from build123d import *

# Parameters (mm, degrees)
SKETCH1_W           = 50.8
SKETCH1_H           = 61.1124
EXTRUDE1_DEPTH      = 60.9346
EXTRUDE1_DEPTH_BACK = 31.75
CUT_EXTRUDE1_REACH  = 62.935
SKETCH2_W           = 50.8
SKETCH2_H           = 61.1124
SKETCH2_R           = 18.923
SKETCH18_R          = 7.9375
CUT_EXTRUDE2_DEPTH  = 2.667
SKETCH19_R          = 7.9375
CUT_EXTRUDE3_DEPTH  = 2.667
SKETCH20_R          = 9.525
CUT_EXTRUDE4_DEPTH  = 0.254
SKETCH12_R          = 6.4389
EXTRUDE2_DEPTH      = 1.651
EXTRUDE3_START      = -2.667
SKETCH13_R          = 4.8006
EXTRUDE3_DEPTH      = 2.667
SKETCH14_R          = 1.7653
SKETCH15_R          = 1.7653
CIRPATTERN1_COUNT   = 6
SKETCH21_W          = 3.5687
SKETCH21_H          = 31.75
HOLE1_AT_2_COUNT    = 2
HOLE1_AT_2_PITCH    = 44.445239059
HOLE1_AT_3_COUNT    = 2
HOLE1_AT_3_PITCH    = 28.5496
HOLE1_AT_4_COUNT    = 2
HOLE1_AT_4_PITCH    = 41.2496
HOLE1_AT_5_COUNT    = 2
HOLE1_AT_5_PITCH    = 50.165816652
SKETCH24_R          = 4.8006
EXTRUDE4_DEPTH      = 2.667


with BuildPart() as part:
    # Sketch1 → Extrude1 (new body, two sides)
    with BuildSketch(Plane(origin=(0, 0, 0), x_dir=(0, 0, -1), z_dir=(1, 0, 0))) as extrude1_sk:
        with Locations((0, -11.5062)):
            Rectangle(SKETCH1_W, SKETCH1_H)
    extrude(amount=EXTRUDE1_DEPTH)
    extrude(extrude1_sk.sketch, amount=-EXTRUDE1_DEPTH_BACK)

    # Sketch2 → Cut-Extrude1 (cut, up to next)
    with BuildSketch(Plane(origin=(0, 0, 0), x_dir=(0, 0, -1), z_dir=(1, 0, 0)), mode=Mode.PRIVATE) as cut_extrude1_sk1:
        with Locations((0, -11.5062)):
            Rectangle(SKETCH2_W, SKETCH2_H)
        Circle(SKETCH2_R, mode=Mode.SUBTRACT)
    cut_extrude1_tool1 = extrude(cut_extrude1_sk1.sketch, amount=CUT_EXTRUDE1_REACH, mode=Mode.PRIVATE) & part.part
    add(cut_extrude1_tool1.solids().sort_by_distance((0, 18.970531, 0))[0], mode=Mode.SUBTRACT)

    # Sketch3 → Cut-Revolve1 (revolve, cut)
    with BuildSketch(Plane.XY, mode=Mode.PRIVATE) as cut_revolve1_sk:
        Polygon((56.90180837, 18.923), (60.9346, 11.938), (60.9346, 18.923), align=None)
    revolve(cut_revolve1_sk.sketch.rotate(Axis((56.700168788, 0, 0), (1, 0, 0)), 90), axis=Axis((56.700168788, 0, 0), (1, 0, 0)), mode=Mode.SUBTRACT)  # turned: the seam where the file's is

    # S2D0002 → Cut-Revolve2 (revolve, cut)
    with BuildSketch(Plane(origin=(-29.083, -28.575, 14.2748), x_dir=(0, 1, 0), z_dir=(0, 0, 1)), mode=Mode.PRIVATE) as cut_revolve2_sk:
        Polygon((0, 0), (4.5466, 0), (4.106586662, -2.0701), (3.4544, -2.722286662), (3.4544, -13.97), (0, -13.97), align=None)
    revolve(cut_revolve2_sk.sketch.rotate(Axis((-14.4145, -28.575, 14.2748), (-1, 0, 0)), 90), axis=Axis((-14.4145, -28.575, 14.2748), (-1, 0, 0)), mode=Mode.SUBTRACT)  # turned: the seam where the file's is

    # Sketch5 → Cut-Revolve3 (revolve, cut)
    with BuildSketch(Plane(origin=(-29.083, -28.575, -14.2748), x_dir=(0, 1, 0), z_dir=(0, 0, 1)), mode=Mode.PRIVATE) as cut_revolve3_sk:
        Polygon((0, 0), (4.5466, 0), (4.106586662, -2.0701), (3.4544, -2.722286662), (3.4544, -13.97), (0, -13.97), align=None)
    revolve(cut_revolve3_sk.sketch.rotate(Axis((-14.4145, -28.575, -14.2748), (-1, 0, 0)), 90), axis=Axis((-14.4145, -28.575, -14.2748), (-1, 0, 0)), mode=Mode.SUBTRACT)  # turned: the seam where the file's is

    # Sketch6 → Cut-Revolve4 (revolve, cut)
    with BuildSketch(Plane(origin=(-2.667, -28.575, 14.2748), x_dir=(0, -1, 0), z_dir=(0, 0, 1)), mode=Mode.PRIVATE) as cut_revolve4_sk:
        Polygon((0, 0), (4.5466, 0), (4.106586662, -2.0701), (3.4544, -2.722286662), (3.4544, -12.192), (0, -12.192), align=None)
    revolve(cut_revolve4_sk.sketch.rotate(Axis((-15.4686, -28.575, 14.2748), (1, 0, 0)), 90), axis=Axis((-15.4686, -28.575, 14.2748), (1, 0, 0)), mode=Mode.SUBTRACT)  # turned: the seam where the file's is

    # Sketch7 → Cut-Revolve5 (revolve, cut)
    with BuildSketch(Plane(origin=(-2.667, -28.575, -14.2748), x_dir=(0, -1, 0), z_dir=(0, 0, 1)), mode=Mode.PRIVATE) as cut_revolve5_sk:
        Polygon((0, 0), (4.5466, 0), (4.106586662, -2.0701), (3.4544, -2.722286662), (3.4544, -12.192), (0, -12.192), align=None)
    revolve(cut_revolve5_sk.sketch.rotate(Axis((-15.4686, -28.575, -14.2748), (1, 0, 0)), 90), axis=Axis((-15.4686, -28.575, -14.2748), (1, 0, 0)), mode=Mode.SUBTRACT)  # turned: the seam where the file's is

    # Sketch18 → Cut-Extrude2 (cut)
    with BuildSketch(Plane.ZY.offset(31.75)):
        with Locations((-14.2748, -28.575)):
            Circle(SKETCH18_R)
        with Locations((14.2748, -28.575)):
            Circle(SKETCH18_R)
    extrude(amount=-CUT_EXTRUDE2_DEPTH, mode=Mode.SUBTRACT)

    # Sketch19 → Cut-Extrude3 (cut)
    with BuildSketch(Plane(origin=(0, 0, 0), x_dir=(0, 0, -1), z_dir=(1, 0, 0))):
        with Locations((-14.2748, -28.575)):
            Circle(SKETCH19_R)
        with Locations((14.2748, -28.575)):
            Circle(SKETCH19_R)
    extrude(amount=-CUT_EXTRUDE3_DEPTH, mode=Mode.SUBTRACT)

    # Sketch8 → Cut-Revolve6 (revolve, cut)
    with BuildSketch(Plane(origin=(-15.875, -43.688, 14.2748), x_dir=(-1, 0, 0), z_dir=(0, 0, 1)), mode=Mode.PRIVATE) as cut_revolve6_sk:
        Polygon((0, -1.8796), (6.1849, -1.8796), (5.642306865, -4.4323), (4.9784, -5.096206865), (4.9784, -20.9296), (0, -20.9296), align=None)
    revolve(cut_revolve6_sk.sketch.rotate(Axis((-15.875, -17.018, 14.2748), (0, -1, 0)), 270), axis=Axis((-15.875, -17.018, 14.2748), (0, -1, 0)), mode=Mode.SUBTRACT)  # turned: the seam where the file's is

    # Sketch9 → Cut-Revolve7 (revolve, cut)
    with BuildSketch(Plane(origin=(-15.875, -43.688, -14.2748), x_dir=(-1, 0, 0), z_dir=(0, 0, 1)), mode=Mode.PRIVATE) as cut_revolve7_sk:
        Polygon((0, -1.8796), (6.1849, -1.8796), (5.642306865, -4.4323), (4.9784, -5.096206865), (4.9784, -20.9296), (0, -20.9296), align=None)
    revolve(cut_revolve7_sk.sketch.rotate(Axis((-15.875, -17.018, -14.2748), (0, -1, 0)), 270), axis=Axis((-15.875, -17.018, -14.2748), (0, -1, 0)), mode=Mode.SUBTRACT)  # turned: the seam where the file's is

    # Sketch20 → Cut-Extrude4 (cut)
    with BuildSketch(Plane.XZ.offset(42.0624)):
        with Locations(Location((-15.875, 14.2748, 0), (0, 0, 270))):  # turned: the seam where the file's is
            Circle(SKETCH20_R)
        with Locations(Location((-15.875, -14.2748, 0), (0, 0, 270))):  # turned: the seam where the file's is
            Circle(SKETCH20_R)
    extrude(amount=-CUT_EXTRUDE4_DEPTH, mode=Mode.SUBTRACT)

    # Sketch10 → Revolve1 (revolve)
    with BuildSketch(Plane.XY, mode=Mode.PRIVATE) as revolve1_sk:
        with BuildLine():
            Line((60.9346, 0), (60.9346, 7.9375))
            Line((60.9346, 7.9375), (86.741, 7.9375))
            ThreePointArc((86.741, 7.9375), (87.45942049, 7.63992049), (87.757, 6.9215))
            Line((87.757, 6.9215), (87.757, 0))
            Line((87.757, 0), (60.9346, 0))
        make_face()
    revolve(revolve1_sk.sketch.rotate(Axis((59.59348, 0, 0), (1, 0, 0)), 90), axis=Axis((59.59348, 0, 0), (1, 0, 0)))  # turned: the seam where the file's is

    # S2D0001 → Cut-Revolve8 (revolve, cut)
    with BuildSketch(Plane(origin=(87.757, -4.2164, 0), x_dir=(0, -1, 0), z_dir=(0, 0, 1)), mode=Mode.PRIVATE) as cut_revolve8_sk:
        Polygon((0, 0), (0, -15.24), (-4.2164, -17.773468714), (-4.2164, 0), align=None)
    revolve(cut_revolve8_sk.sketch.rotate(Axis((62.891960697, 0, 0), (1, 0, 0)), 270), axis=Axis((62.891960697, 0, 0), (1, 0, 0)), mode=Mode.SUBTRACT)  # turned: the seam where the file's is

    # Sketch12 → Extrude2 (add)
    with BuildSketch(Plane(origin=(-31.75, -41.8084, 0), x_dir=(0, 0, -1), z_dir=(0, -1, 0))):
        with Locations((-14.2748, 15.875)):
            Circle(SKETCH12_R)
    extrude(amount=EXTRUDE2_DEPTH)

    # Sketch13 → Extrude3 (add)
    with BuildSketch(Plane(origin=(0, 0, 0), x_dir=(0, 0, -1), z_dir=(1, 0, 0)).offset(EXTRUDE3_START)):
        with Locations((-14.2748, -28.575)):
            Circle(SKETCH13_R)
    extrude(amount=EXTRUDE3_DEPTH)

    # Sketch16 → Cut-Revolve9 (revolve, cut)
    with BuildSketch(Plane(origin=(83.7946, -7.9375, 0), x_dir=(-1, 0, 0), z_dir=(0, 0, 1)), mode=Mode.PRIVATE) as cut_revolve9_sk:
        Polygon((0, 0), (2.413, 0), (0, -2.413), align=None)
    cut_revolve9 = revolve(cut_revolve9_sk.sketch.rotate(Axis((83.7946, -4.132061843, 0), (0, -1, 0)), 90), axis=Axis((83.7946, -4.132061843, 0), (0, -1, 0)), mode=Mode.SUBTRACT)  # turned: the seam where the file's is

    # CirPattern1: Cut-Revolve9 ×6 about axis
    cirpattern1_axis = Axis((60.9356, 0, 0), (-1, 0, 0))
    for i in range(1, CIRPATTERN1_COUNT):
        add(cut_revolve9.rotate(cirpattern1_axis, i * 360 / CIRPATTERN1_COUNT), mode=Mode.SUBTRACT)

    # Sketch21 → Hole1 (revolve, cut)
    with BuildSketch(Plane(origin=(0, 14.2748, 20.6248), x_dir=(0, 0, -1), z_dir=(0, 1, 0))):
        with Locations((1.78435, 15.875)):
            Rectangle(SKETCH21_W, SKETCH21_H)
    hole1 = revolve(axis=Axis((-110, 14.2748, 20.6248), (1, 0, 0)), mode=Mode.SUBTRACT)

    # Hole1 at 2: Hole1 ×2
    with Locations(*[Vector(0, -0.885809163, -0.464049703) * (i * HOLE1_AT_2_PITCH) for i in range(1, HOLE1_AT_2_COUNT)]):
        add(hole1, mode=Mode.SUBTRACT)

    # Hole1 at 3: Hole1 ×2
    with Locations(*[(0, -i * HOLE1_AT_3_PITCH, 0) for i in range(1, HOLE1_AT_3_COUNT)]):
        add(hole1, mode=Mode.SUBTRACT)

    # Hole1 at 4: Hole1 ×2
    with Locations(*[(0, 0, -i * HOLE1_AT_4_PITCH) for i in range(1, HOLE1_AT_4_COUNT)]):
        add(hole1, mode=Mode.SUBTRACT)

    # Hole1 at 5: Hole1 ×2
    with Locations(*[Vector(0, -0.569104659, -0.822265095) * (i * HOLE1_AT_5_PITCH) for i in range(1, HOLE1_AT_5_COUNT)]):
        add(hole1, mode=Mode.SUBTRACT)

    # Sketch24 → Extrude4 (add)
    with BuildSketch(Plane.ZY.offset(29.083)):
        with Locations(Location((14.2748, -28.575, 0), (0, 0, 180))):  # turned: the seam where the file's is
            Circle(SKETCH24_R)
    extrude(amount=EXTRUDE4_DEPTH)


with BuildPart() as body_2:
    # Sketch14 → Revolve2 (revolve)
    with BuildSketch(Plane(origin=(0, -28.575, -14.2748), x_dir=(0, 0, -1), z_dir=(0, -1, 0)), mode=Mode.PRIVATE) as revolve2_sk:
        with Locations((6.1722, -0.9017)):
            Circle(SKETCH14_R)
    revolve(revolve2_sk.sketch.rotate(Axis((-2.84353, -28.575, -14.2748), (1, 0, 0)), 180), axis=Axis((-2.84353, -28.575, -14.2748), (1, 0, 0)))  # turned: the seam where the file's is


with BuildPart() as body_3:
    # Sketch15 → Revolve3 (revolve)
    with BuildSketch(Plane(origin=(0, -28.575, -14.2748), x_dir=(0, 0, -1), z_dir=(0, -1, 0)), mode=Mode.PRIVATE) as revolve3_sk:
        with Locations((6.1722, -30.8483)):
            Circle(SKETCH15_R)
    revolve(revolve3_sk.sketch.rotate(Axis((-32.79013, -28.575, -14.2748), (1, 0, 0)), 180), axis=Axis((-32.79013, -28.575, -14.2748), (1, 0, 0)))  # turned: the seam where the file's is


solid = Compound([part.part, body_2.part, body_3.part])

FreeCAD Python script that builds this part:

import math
import FreeCAD as App
import Part
import Sketcher
from FreeCAD import Vector
Q = App.Units.Quantity

doc = App.newDocument("Part")
body = doc.addObject("PartDesign::Body", "Body")

sketch1 = body.newObject("Sketcher::SketchObject", "Sketch")
sketch1.AttachmentSupport = (doc.getObject("YZ_Plane"), [""])
sketch1.MapMode = "FlatFace"
sketch1.addGeometry(Part.LineSegment(Vector(19, 25, 0), Vector(-42, 25, 0)), False)
sketch1.addGeometry(Part.LineSegment(Vector(-42, 25, 0), Vector(-42, -25, 0)), False)
sketch1.addGeometry(Part.LineSegment(Vector(-42, -25, 0), Vector(19, -25, 0)), False)
sketch1.addGeometry(Part.LineSegment(Vector(19, -25, 0), Vector(19, 25, 0)), False)
sketch1.addConstraint(Sketcher.Constraint("Coincident", 0, 2, 1, 1))
sketch1.addConstraint(Sketcher.Constraint("Coincident", 1, 2, 2, 1))
sketch1.addConstraint(Sketcher.Constraint("Coincident", 2, 2, 3, 1))
sketch1.addConstraint(Sketcher.Constraint("Coincident", 3, 2, 0, 1))
sketch1.addConstraint(Sketcher.Constraint("Horizontal", 0))
sketch1.addConstraint(Sketcher.Constraint("Vertical", 1))
sketch1.addConstraint(Sketcher.Constraint("Horizontal", 2))
sketch1.addConstraint(Sketcher.Constraint("Vertical", 3))
sketch1.addConstraint(Sketcher.Constraint("DistanceY", 1, 2, 1, 1, Q("2 in")))
sketch1.addConstraint(Sketcher.Constraint("DistanceY", -1, 1, 0, 2, Q("1 in")))
sketch1.addConstraint(Sketcher.Constraint("DistanceX", 0, 2, 0, 1, Q("2.406 in")))
sketch1.addConstraint(Sketcher.Constraint("DistanceX", -1, 1, 2, 2, Q("0.75 in")))
pad1 = body.newObject("PartDesign::Pad", "Pad")
pad1.Profile = sketch1
pad1.Type = "TwoLengths"
pad1.Length = Q("2.399 in")
pad1.Length2 = Q("1.25 in")

sketch2 = body.newObject("Sketcher::SketchObject", "Sketch001")
sketch2.AttachmentSupport = (doc.getObject("YZ_Plane"), [""])
sketch2.MapMode = "FlatFace"
sketch2.addGeometry(Part.LineSegment(Vector(19, 25, 0), Vector(-42, 25, 0)), False)
sketch2.addGeometry(Part.LineSegment(Vector(-42, 25, 0), Vector(-42, -25, 0)), False)
sketch2.addGeometry(Part.LineSegment(Vector(-42, -25, 0), Vector(19, -25, 0)), False)
sketch2.addGeometry(Part.LineSegment(Vector(19, -25, 0), Vector(19, 25, 0)), False)
sketch2.addGeometry(Part.Circle(Vector(0, 0, 0), Vector(0, 0, 1), 19), False)
sketch2.addConstraint(Sketcher.Constraint("Coincident", 0, 2, 1, 1))
sketch2.addConstraint(Sketcher.Constraint("Coincident", 1, 2, 2, 1))
sketch2.addConstraint(Sketcher.Constraint("Coincident", 2, 2, 3, 1))
sketch2.addConstraint(Sketcher.Constraint("Coincident", 3, 2, 0, 1))
sketch2.addConstraint(Sketcher.Constraint("Horizontal", 0))
sketch2.addConstraint(Sketcher.Constraint("Vertical", 1))
sketch2.addConstraint(Sketcher.Constraint("Horizontal", 2))
sketch2.addConstraint(Sketcher.Constraint("Vertical", 3))
sketch2.addConstraint(Sketcher.Constraint("Coincident", 4, 3, -1, 1))
sketch2.addConstraint(Sketcher.Constraint("Diameter", 4, Q("1.49 in")))
sketch2.addConstraint(Sketcher.Constraint("DistanceY", 1, 2, 1, 1, Q("2 in")))
sketch2.addConstraint(Sketcher.Constraint("DistanceY", -1, 1, 0, 2, Q("1 in")))
sketch2.addConstraint(Sketcher.Constraint("DistanceX", 0, 2, 0, 1, Q("2.406 in")))
sketch2.addConstraint(Sketcher.Constraint("DistanceX", -1, 1, 2, 2, Q("0.75 in")))
pocket1 = body.newObject("PartDesign::Pocket", "Pocket")
pocket1.Profile = sketch2
pocket1.Type = "UpToFirst"
pocket1.Reversed = True

sketch3 = body.newObject("Sketcher::SketchObject", "Sketch002")
sketch3.AttachmentSupport = (doc.getObject("XY_Plane"), [""])
sketch3.MapMode = "FlatFace"
sketch3.addGeometry(Part.LineSegment(Vector(56.9, 18.9, 0), Vector(60.9, 11.9, 0)), False)
sketch3.addGeometry(Part.LineSegment(Vector(60.9, 11.9, 0), Vector(60.9, 18.9, 0)), False)
sketch3.addGeometry(Part.LineSegment(Vector(60.9, 18.9, 0), Vector(56.9, 18.9, 0)), False)
sketch3.addConstraint(Sketcher.Constraint("Coincident", 0, 2, 1, 1))
sketch3.addConstraint(Sketcher.Constraint("Coincident", 1, 2, 2, 1))
sketch3.addConstraint(Sketcher.Constraint("Coincident", 2, 2, 0, 1))
sketch3.addConstraint(Sketcher.Constraint("Vertical", 1))
sketch3.addConstraint(Sketcher.Constraint("Horizontal", 2))
sketch3.addConstraint(Sketcher.Constraint("Angle", 0, Q("-60 deg")))
sketch3.addConstraint(Sketcher.Constraint("DistanceY", 1, 1, 1, 2, Q("0.275 in")))
sketch3.addConstraint(Sketcher.Constraint("DistanceY", -1, 1, 0, 2, Q("0.47 in")))
sketch3.addConstraint(Sketcher.Constraint("DistanceX", -1, 1, 0, 2, Q("2.399 in")))
groove = body.newObject("PartDesign::Groove", "Groove")
groove.Profile = sketch3
groove.ReferenceAxis = (sketch3, ["H_Axis"])
groove.Angle = 360

sketch4 = body.newObject("Sketcher::SketchObject", "Sketch003")
sketch4.AttachmentSupport = (doc.getObject("XY_Plane"), [""])
sketch4.MapMode = "FlatFace"
sketch4.AttachmentOffset = App.Placement(Vector(0, 0, 0.562 * 25.4), App.Rotation())
sketch4.addGeometry(Part.LineSegment(Vector(-29.1, -24, 0), Vector(-29.1, -28.6, 0)), False)
sketch4.addGeometry(Part.LineSegment(Vector(-29.1, -28.6, 0), Vector(-15.1, -28.6, 0)), False)
sketch4.addGeometry(Part.LineSegment(Vector(-15.1, -28.6, 0), Vector(-15.1, -25.1, 0)), False)
sketch4.addGeometry(Part.LineSegment(Vector(-15.1, -25.1, 0), Vector(-26.4, -25.1, 0)), False)
sketch4.addGeometry(Part.LineSegment(Vector(-26.4, -25.1, 0), Vector(-27, -24.5, 0)), False)
sketch4.addGeometry(Part.LineSegment(Vector(-27, -24.5, 0), Vector(-29.1, -24, 0)), False)
sketch4.addGeometry(Part.LineSegment(Vector(-15.1, -28.6, 0), Vector(-29.1, -28.6, 0)), True)
sketch4.addConstraint(Sketcher.Constraint("Coincident", 0, 2, 1, 1))
sketch4.addConstraint(Sketcher.Constraint("Coincident", 1, 2, 2, 1))
sketch4.addConstraint(Sketcher.Constraint("Coincident", 2, 2, 3, 1))
sketch4.addConstraint(Sketcher.Constraint("Coincident", 3, 2, 4, 1))
sketch4.addConstraint(Sketcher.Constraint("Coincident", 4, 2, 5, 1))
sketch4.addConstraint(Sketcher.Constraint("Coincident", 5, 2, 0, 1))
sketch4.addConstraint(Sketcher.Constraint("Vertical", 0))
sketch4.addConstraint(Sketcher.Constraint("Horizontal", 1))
sketch4.addConstraint(Sketcher.Constraint("Vertical", 2))
sketch4.addConstraint(Sketcher.Constraint("Horizontal", 3))
sketch4.addConstraint(Sketcher.Constraint("Horizontal", 6))
sketch4.addConstraint(Sketcher.Constraint("Coincident", 6, 1, 1, 2))
sketch4.addConstraint(Sketcher.Constraint("Vertical", 5, 2, 6, 2))
sketch4.addConstraint(Sketcher.Constraint("Angle", 4, Q("135 deg")))
sketch4.addConstraint(Sketcher.Constraint("Angle", 5, Q("168 deg")))
sketch4.addConstraint(Sketcher.Constraint("DistanceX", 1, 1, 1, 2, Q("0.55 in")))
sketch4.addConstraint(Sketcher.Constraint("DistanceY", 0, 2, 0, 1, Q("0.179 in")))
sketch4.addConstraint(Sketcher.Constraint("DistanceY", 2, 1, 2, 2, Q("0.136 in")))
sketch4.addConstraint(Sketcher.Constraint("DistanceX", 0, 2, -1, 1, Q("1.145 in")))
sketch4.addConstraint(Sketcher.Constraint("DistanceY", 0, 2, -1, 1, Q("1.125 in")))
sketch4.addConstraint(Sketcher.Constraint("DistanceX", 4, 2, -1, 1, Q("1.0635 in")))
groove2 = body.newObject("PartDesign::Groove", "Groove001")
groove2.Profile = sketch4
groove2.ReferenceAxis = (sketch4, ["Axis0"])
groove2.Angle = 360

sketch5 = body.newObject("Sketcher::SketchObject", "Sketch004")
sketch5.AttachmentSupport = (doc.getObject("XY_Plane"), [""])
sketch5.MapMode = "FlatFace"
sketch5.AttachmentOffset = App.Placement(Vector(0, 0, -0.562 * 25.4), App.Rotation())
sketch5.addGeometry(Part.LineSegment(Vector(-29.1, -24, 0), Vector(-29.1, -28.6, 0)), False)
sketch5.addGeometry(Part.LineSegment(Vector(-29.1, -28.6, 0), Vector(-15.1, -28.6, 0)), False)
sketch5.addGeometry(Part.LineSegment(Vector(-15.1, -28.6, 0), Vector(-15.1, -25.1, 0)), False)
sketch5.addGeometry(Part.LineSegment(Vector(-15.1, -25.1, 0), Vector(-26.4, -25.1, 0)), False)
sketch5.addGeometry(Part.LineSegment(Vector(-26.4, -25.1, 0), Vector(-27, -24.5, 0)), False)
sketch5.addGeometry(Part.LineSegment(Vector(-27, -24.5, 0), Vector(-29.1, -24, 0)), False)
sketch5.addGeometry(Part.LineSegment(Vector(-15.1, -28.6, 0), Vector(-29.1, -28.6, 0)), True)
sketch5.addConstraint(Sketcher.Constraint("Coincident", 0, 2, 1, 1))
sketch5.addConstraint(Sketcher.Constraint("Coincident", 1, 2, 2, 1))
sketch5.addConstraint(Sketcher.Constraint("Coincident", 2, 2, 3, 1))
sketch5.addConstraint(Sketcher.Constraint("Coincident", 3, 2, 4, 1))
sketch5.addConstraint(Sketcher.Constraint("Coincident", 4, 2, 5, 1))
sketch5.addConstraint(Sketcher.Constraint("Coincident", 5, 2, 0, 1))
sketch5.addConstraint(Sketcher.Constraint("Vertical", 0))
sketch5.addConstraint(Sketcher.Constraint("Horizontal", 1))
sketch5.addConstraint(Sketcher.Constraint("Vertical", 2))
sketch5.addConstraint(Sketcher.Constraint("Horizontal", 3))
sketch5.addConstraint(Sketcher.Constraint("Horizontal", 6))
sketch5.addConstraint(Sketcher.Constraint("Coincident", 6, 1, 1, 2))
sketch5.addConstraint(Sketcher.Constraint("Vertical", 5, 2, 6, 2))
sketch5.addConstraint(Sketcher.Constraint("Angle", 4, Q("135 deg")))
sketch5.addConstraint(Sketcher.Constraint("Angle", 5, Q("168 deg")))
sketch5.addConstraint(Sketcher.Constraint("DistanceX", 1, 1, 1, 2, Q("0.55 in")))
sketch5.addConstraint(Sketcher.Constraint("DistanceY", 0, 2, 0, 1, Q("0.179 in")))
sketch5.addConstraint(Sketcher.Constraint("DistanceY", 2, 1, 2, 2, Q("0.136 in")))
sketch5.addConstraint(Sketcher.Constraint("DistanceX", 0, 2, -1, 1, Q("1.145 in")))
sketch5.addConstraint(Sketcher.Constraint("DistanceY", 0, 2, -1, 1, Q("1.125 in")))
sketch5.addConstraint(Sketcher.Constraint("DistanceX", 4, 2, -1, 1, Q("1.0635 in")))
groove3 = body.newObject("PartDesign::Groove", "Groove002")
groove3.Profile = sketch5
groove3.ReferenceAxis = (sketch5, ["Axis0"])
groove3.Angle = 360

sketch6 = body.newObject("Sketcher::SketchObject", "Sketch005")
sketch6.AttachmentSupport = (doc.getObject("XY_Plane"), [""])
sketch6.MapMode = "FlatFace"
sketch6.AttachmentOffset = App.Placement(Vector(0, 0, 0.562 * 25.4), App.Rotation())
sketch6.addGeometry(Part.LineSegment(Vector(-2.7, -33.1, 0), Vector(-2.7, -28.6, 0)), False)
sketch6.addGeometry(Part.LineSegment(Vector(-2.7, -28.6, 0), Vector(-14.9, -28.6, 0)), False)
sketch6.addGeometry(Part.LineSegment(Vector(-14.9, -28.6, 0), Vector(-14.9, -32, 0)), False)
sketch6.addGeometry(Part.LineSegment(Vector(-14.9, -32, 0), Vector(-5.4, -32, 0)), False)
sketch6.addGeometry(Part.LineSegment(Vector(-5.4, -32, 0), Vector(-4.7, -32.7, 0)), False)
sketch6.addGeometry(Part.LineSegment(Vector(-4.7, -32.7, 0), Vector(-2.7, -33.1, 0)), False)
sketch6.addGeometry(Part.LineSegment(Vector(-14.9, -28.6, 0), Vector(-2.7, -28.6, 0)), True)
sketch6.addConstraint(Sketcher.Constraint("Coincident", 0, 2, 1, 1))
sketch6.addConstraint(Sketcher.Constraint("Coincident", 1, 2, 2, 1))
sketch6.addConstraint(Sketcher.Constraint("Coincident", 2, 2, 3, 1))
sketch6.addConstraint(Sketcher.Constraint("Coincident", 3, 2, 4, 1))
sketch6.addConstraint(Sketcher.Constraint("Coincident", 4, 2, 5, 1))
sketch6.addConstraint(Sketcher.Constraint("Coincident", 5, 2, 0, 1))
sketch6.addConstraint(Sketcher.Constraint("Vertical", 0))
sketch6.addConstraint(Sketcher.Constraint("Horizontal", 1))
sketch6.addConstraint(Sketcher.Constraint("Vertical", 2))
sketch6.addConstraint(Sketcher.Constraint("Horizontal", 3))
sketch6.addConstraint(Sketcher.Constraint("Horizontal", 6))
sketch6.addConstraint(Sketcher.Constraint("Coincident", 6, 1, 1, 2))
sketch6.addConstraint(Sketcher.Constraint("Vertical", 5, 2, 6, 2))
sketch6.addConstraint(Sketcher.Constraint("Angle", 4, Q("-45 deg")))
sketch6.addConstraint(Sketcher.Constraint("Angle", 5, Q("-12 deg")))
sketch6.addConstraint(Sketcher.Constraint("DistanceX", 1, 2, 1, 1, Q("0.48 in")))
sketch6.addConstraint(Sketcher.Constraint("DistanceY", 0, 1, 0, 2, Q("0.179 in")))
sketch6.addConstraint(Sketcher.Constraint("DistanceY", 2, 2, 2, 1, Q("0.136 in")))
sketch6.addConstraint(Sketcher.Constraint("DistanceX", 0, 2, -1, 1, Q("0.105 in")))
sketch6.addConstraint(Sketcher.Constraint("DistanceY", 0, 2, -1, 1, Q("1.125 in")))
sketch6.addConstraint(Sketcher.Constraint("DistanceX", 4, 2, -1, 1, Q("0.1865 in")))
groove4 = body.newObject("PartDesign::Groove", "Groove003")
groove4.Profile = sketch6
groove4.ReferenceAxis = (sketch6, ["Axis0"])
groove4.Angle = 360

sketch7 = body.newObject("Sketcher::SketchObject", "Sketch006")
sketch7.AttachmentSupport = (doc.getObject("XY_Plane"), [""])
sketch7.MapMode = "FlatFace"
sketch7.AttachmentOffset = App.Placement(Vector(0, 0, -0.562 * 25.4), App.Rotation())
sketch7.addGeometry(Part.LineSegment(Vector(-2.7, -33.1, 0), Vector(-2.7, -28.6, 0)), False)
sketch7.addGeometry(Part.LineSegment(Vector(-2.7, -28.6, 0), Vector(-14.9, -28.6, 0)), False)
sketch7.addGeometry(Part.LineSegment(Vector(-14.9, -28.6, 0), Vector(-14.9, -32, 0)), False)
sketch7.addGeometry(Part.LineSegment(Vector(-14.9, -32, 0), Vector(-5.4, -32, 0)), False)
sketch7.addGeometry(Part.LineSegment(Vector(-5.4, -32, 0), Vector(-4.7, -32.7, 0)), False)
sketch7.addGeometry(Part.LineSegment(Vector(-4.7, -32.7, 0), Vector(-2.7, -33.1, 0)), False)
sketch7.addGeometry(Part.LineSegment(Vector(-14.9, -28.6, 0), Vector(-2.7, -28.6, 0)), True)
sketch7.addConstraint(Sketcher.Constraint("Coincident", 0, 2, 1, 1))
sketch7.addConstraint(Sketcher.Constraint("Coincident", 1, 2, 2, 1))
sketch7.addConstraint(Sketcher.Constraint("Coincident", 2, 2, 3, 1))
sketch7.addConstraint(Sketcher.Constraint("Coincident", 3, 2, 4, 1))
sketch7.addConstraint(Sketcher.Constraint("Coincident", 4, 2, 5, 1))
sketch7.addConstraint(Sketcher.Constraint("Coincident", 5, 2, 0, 1))
sketch7.addConstraint(Sketcher.Constraint("Vertical", 0))
sketch7.addConstraint(Sketcher.Constraint("Horizontal", 1))
sketch7.addConstraint(Sketcher.Constraint("Vertical", 2))
sketch7.addConstraint(Sketcher.Constraint("Horizontal", 3))
sketch7.addConstraint(Sketcher.Constraint("Horizontal", 6))
sketch7.addConstraint(Sketcher.Constraint("Coincident", 6, 1, 1, 2))
sketch7.addConstraint(Sketcher.Constraint("Vertical", 5, 2, 6, 2))
sketch7.addConstraint(Sketcher.Constraint("Angle", 4, Q("-45 deg")))
sketch7.addConstraint(Sketcher.Constraint("Angle", 5, Q("-12 deg")))
sketch7.addConstraint(Sketcher.Constraint("DistanceX", 1, 2, 1, 1, Q("0.48 in")))
sketch7.addConstraint(Sketcher.Constraint("DistanceY", 0, 1, 0, 2, Q("0.179 in")))
sketch7.addConstraint(Sketcher.Constraint("DistanceY", 2, 2, 2, 1, Q("0.136 in")))
sketch7.addConstraint(Sketcher.Constraint("DistanceX", 0, 2, -1, 1, Q("0.105 in")))
sketch7.addConstraint(Sketcher.Constraint("DistanceY", 0, 2, -1, 1, Q("1.125 in")))
sketch7.addConstraint(Sketcher.Constraint("DistanceX", 4, 2, -1, 1, Q("0.1865 in")))
groove5 = body.newObject("PartDesign::Groove", "Groove004")
groove5.Profile = sketch7
groove5.ReferenceAxis = (sketch7, ["Axis0"])
groove5.Angle = 360

sketch8 = body.newObject("Sketcher::SketchObject", "Sketch007")
sketch8.AttachmentSupport = (doc.getObject("YZ_Plane"), [""])
sketch8.MapMode = "FlatFace"
sketch8.AttachmentOffset = App.Placement(Vector(0, 0, -1.25 * 25.4), App.Rotation())
sketch8.addGeometry(Part.Circle(Vector(-29, -14, 0), Vector(0, 0, 1), 8), False)
sketch8.addGeometry(Part.Circle(Vector(-29, 14, 0), Vector(0, 0, 1), 8), False)
sketch8.addConstraint(Sketcher.Constraint("Equal", 0, 1))
sketch8.addConstraint(Sketcher.Constraint("Symmetric", 0, 3, 1, 3, -1))
sketch8.addConstraint(Sketcher.Constraint("Diameter", 0, Q("0.625 in")))
sketch8.addConstraint(Sketcher.Constraint("DistanceX", 0, 3, -1, 1, Q("1.125 in")))
sketch8.addConstraint(Sketcher.Constraint("DistanceY", 0, 3, -1, 1, Q("0.562 in")))
pocket2 = body.newObject("PartDesign::Pocket", "Pocket001")
pocket2.Profile = sketch8
pocket2.Length = Q("0.105 in")
pocket2.Reversed = True

sketch9 = body.newObject("Sketcher::SketchObject", "Sketch008")
sketch9.AttachmentSupport = (doc.getObject("YZ_Plane"), [""])
sketch9.MapMode = "FlatFace"
sketch9.addGeometry(Part.Circle(Vector(-29, 14, 0), Vector(0, 0, 1), 8), False)
sketch9.addGeometry(Part.Circle(Vector(-29, -14, 0), Vector(0, 0, 1), 8), False)
sketch9.addConstraint(Sketcher.Constraint("Equal", 0, 1))
sketch9.addConstraint(Sketcher.Constraint("Symmetric", 0, 3, 1, 3, -1))
sketch9.addConstraint(Sketcher.Constraint("Diameter", 0, Q("0.625 in")))
sketch9.addConstraint(Sketcher.Constraint("DistanceX", 0, 3, -1, 1, Q("1.125 in")))
sketch9.addConstraint(Sketcher.Constraint("DistanceY", -1, 1, 0, 3, Q("0.562 in")))
pocket3 = body.newObject("PartDesign::Pocket", "Pocket002")
pocket3.Profile = sketch9
pocket3.Length = Q("0.105 in")

sketch10 = body.newObject("Sketcher::SketchObject", "Sketch009")
sketch10.AttachmentSupport = (doc.getObject("XY_Plane"), [""])
sketch10.MapMode = "FlatFace"
sketch10.AttachmentOffset = App.Placement(Vector(0, 0, 0.562 * 25.4), App.Rotation())
sketch10.addGeometry(Part.LineSegment(Vector(-22.1, -41.8, 0), Vector(-15.9, -41.8, 0)), False)
sketch10.addGeometry(Part.LineSegment(Vector(-15.9, -41.8, 0), Vector(-15.9, -22.8, 0)), False)
sketch10.addGeometry(Part.LineSegment(Vector(-15.9, -22.8, 0), Vector(-20.9, -22.8, 0)), False)
sketch10.addGeometry(Part.LineSegment(Vector(-20.9, -22.8, 0), Vector(-20.9, -38.6, 0)), False)
sketch10.addGeometry(Part.LineSegment(Vector(-20.9, -38.6, 0), Vector(-21.5, -39.3, 0)), False)
sketch10.addGeometry(Part.LineSegment(Vector(-21.5, -39.3, 0), Vector(-22.1, -41.8, 0)), False)
sketch10.addGeometry(Part.LineSegment(Vector(-15.9, -22.8, 0), Vector(-15.9, -41.8, 0)), True)
sketch10.addConstraint(Sketcher.Constraint("Coincident", 0, 2, 1, 1))
sketch10.addConstraint(Sketcher.Constraint("Coincident", 1, 2, 2, 1))
sketch10.addConstraint(Sketcher.Constraint("Coincident", 2, 2, 3, 1))
sketch10.addConstraint(Sketcher.Constraint("Coincident", 3, 2, 4, 1))
sketch10.addConstraint(Sketcher.Constraint("Coincident", 4, 2, 5, 1))
sketch10.addConstraint(Sketcher.Constraint("Coincident", 5, 2, 0, 1))
sketch10.addConstraint(Sketcher.Constraint("Horizontal", 0))
sketch10.addConstraint(Sketcher.Constraint("Vertical", 1))
sketch10.addConstraint(Sketcher.Constraint("Horizontal", 2))
sketch10.addConstraint(Sketcher.Constraint("Vertical", 3))
sketch10.addConstraint(Sketcher.Constraint("Vertical", 6))
sketch10.addConstraint(Sketcher.Constraint("Coincident", 6, 1, 1, 2))
sketch10.addConstraint(Sketcher.Constraint("Horizontal", 5, 2, 6, 2))
sketch10.addConstraint(Sketcher.Constraint("Angle", 4, Q("-135 deg")))
sketch10.addConstraint(Sketcher.Constraint("Angle", 5, Q("-102 deg")))
sketch10.addConstraint(Sketcher.Constraint("DistanceY", 1, 1, 1, 2, Q("0.75 in")))
sketch10.addConstraint(Sketcher.Constraint("DistanceX", 2, 2, 2, 1, Q("0.196 in")))
sketch10.addConstraint(Sketcher.Constraint("DistanceX", 0, 1, 0, 2, Q("0.2435 in")))
sketch10.addConstraint(Sketcher.Constraint("DistanceX", 0, 2, -1, 1, Q("0.625 in")))
sketch10.addConstraint(Sketcher.Constraint("DistanceY", 0, 2, -1, 1, Q("1.646 in")))
sketch10.addConstraint(Sketcher.Constraint("DistanceY", 4, 2, -1, 1, Q("1.5455 in")))
groove6 = body.newObject("PartDesign::Groove", "Groove005")
groove6.Profile = sketch10
groove6.ReferenceAxis = (sketch10, ["Axis0"])
groove6.Angle = 360

sketch11 = body.newObject("Sketcher::SketchObject", "Sketch010")
sketch11.AttachmentSupport = (doc.getObject("XY_Plane"), [""])
sketch11.MapMode = "FlatFace"
sketch11.AttachmentOffset = App.Placement(Vector(0, 0, -0.562 * 25.4), App.Rotation())
sketch11.addGeometry(Part.LineSegment(Vector(-22.1, -41.8, 0), Vector(-15.9, -41.8, 0)), False)
sketch11.addGeometry(Part.LineSegment(Vector(-15.9, -41.8, 0), Vector(-15.9, -22.8, 0)), False)
sketch11.addGeometry(Part.LineSegment(Vector(-15.9, -22.8, 0), Vector(-20.9, -22.8, 0)), False)
sketch11.addGeometry(Part.LineSegment(Vector(-20.9, -22.8, 0), Vector(-20.9, -38.6, 0)), False)
sketch11.addGeometry(Part.LineSegment(Vector(-20.9, -38.6, 0), Vector(-21.5, -39.3, 0)), False)
sketch11.addGeometry(Part.LineSegment(Vector(-21.5, -39.3, 0), Vector(-22.1, -41.8, 0)), False)
sketch11.addGeometry(Part.LineSegment(Vector(-15.9, -22.8, 0), Vector(-15.9, -41.8, 0)), True)
sketch11.addConstraint(Sketcher.Constraint("Coincident", 0, 2, 1, 1))
sketch11.addConstraint(Sketcher.Constraint("Coincident", 1, 2, 2, 1))
sketch11.addConstraint(Sketcher.Constraint("Coincident", 2, 2, 3, 1))
sketch11.addConstraint(Sketcher.Constraint("Coincident", 3, 2, 4, 1))
sketch11.addConstraint(Sketcher.Constraint("Coincident", 4, 2, 5, 1))
sketch11.addConstraint(Sketcher.Constraint("Coincident", 5, 2, 0, 1))
sketch11.addConstraint(Sketcher.Constraint("Horizontal", 0))
sketch11.addConstraint(Sketcher.Constraint("Vertical", 1))
sketch11.addConstraint(Sketcher.Constraint("Horizontal", 2))
sketch11.addConstraint(Sketcher.Constraint("Vertical", 3))
sketch11.addConstraint(Sketcher.Constraint("Vertical", 6))
sketch11.addConstraint(Sketcher.Constraint("Coincident", 6, 1, 1, 2))
sketch11.addConstraint(Sketcher.Constraint("Horizontal", 5, 2, 6, 2))
sketch11.addConstraint(Sketcher.Constraint("Angle", 4, Q("-135 deg")))
sketch11.addConstraint(Sketcher.Constraint("Angle", 5, Q("-102 deg")))
sketch11.addConstraint(Sketcher.Constraint("DistanceY", 1, 1, 1, 2, Q("0.75 in")))
sketch11.addConstraint(Sketcher.Constraint("DistanceX", 2, 2, 2, 1, Q("0.196 in")))
sketch11.addConstraint(Sketcher.Constraint("DistanceX", 0, 1, 0, 2, Q("0.2435 in")))
sketch11.addConstraint(Sketcher.Constraint("DistanceX", 0, 2, -1, 1, Q("0.625 in")))
sketch11.addConstraint(Sketcher.Constraint("DistanceY", 0, 2, -1, 1, Q("1.646 in")))
sketch11.addConstraint(Sketcher.Constraint("DistanceY", 4, 2, -1, 1, Q("1.5455 in")))
groove7 = body.newObject("PartDesign::Groove", "Groove006")
groove7.Profile = sketch11
groove7.ReferenceAxis = (sketch11, ["Axis0"])
groove7.Angle = 360

sketch12 = body.newObject("Sketcher::SketchObject", "Sketch011")
sketch12.AttachmentSupport = (doc.getObject("XZ_Plane"), [""])
sketch12.MapMode = "FlatFace"
sketch12.AttachmentOffset = App.Placement(Vector(0, 0, 1.656 * 25.4), App.Rotation())
sketch12.addGeometry(Part.Circle(Vector(-16, 14, 0), Vector(0, 0, 1), 10), False)
sketch12.addGeometry(Part.Circle(Vector(-16, -14, 0), Vector(0, 0, 1), 10), False)
sketch12.addConstraint(Sketcher.Constraint("Equal", 0, 1))
sketch12.addConstraint(Sketcher.Constraint("Symmetric", 0, 3, 1, 3, -1))
sketch12.addConstraint(Sketcher.Constraint("Diameter", 0, Q("0.75 in")))
sketch12.addConstraint(Sketcher.Constraint("DistanceX", 0, 3, -1, 1, Q("0.625 in")))
sketch12.addConstraint(Sketcher.Constraint("DistanceY", -1, 1, 0, 3, Q("0.562 in")))
pocket4 = body.newObject("PartDesign::Pocket", "Pocket003")
pocket4.Profile = sketch12
pocket4.Length = Q("0.01 in")

sketch13 = body.newObject("Sketcher::SketchObject", "Sketch012")
sketch13.AttachmentSupport = (doc.getObject("XY_Plane"), [""])
sketch13.MapMode = "FlatFace"
sketch13.addGeometry(Part.LineSegment(Vector(60.9, 7.9, 0), Vector(60.9, 0, 0)), False)
sketch13.addGeometry(Part.LineSegment(Vector(60.9, 0, 0), Vector(87.8, 0, 0)), False)
sketch13.addGeometry(Part.LineSegment(Vector(87.8, 0, 0), Vector(87.8, 6.9, 0)), False)
sketch13.addGeometry(Part.ArcOfCircle(Part.Circle(Vector(86.7, 6.9, 0), Vector(0, 0, 1), 1), math.radians(0), math.radians(90)), False)
sketch13.addGeometry(Part.LineSegment(Vector(86.7, 7.9, 0), Vector(60.9, 7.9, 0)), False)
sketch13.addConstraint(Sketcher.Constraint("Coincident", 0, 2, 1, 1))
sketch13.addConstraint(Sketcher.Constraint("Coincident", 1, 2, 2, 1))
sketch13.addConstraint(Sketcher.Constraint("Tangent", 2, 2, 3, 1))
sketch13.addConstraint(Sketcher.Constraint("Tangent", 3, 2, 4, 1))
sketch13.addConstraint(Sketcher.Constraint("Coincident", 4, 2, 0, 1))
sketch13.addConstraint(Sketcher.Constraint("Vertical", 0))
sketch13.addConstraint(Sketcher.Constraint("Horizontal", 1))
sketch13.addConstraint(Sketcher.Constraint("Vertical", 2))
sketch13.addConstraint(Sketcher.Constraint("Horizontal", 4))
sketch13.addConstraint(Sketcher.Constraint("PointOnObject", 0, 2, -1))
sketch13.addConstraint(Sketcher.Constraint("Radius", 3, Q("0.04 in")))
sketch13.addConstraint(Sketcher.Constraint("DistanceX", 1, 1, 1, 2, Q("1.056 in")))
sketch13.addConstraint(Sketcher.Constraint("DistanceY", 0, 2, 0, 1, Q("0.3125 in")))
sketch13.addConstraint(Sketcher.Constraint("DistanceX", -1, 1, 3, 3, Q("3.415 in")))
revolution = body.newObject("PartDesign::Revolution", "Revolution")
revolution.Profile = sketch13
revolution.ReferenceAxis = (sketch13, ["H_Axis"])
revolution.Angle = 360

sketch14 = body.newObject("Sketcher::SketchObject", "Sketch013")
sketch14.AttachmentSupport = (doc.getObject("XY_Plane"), [""])
sketch14.MapMode = "FlatFace"
sketch14.addGeometry(Part.LineSegment(Vector(72.5, -4.2, 0), Vector(87.8, -4.2, 0)), False)
sketch14.addGeometry(Part.LineSegment(Vector(87.8, -4.2, 0), Vector(87.8, 0, 0)), False)
sketch14.addGeometry(Part.LineSegment(Vector(87.8, 0, 0), Vector(70, 0, 0)), False)
sketch14.addGeometry(Part.LineSegment(Vector(70, 0, 0), Vector(72.5, -4.2, 0)), False)
sketch14.addConstraint(Sketcher.Constraint("Coincident", 0, 2, 1, 1))
sketch14.addConstraint(Sketcher.Constraint("Coincident", 1, 2, 2, 1))
sketch14.addConstraint(Sketcher.Constraint("Coincident", 2, 2, 3, 1))
sketch14.addConstraint(Sketcher.Constraint("Coincident", 3, 2, 0, 1))
sketch14.addConstraint(Sketcher.Constraint("Horizontal", 0))
sketch14.addConstraint(Sketcher.Constraint("Vertical", 1))
sketch14.addConstraint(Sketcher.Constraint("Horizontal", 2))
sketch14.addConstraint(Sketcher.Constraint("PointOnObject", 1, 2, -1))
sketch14.addConstraint(Sketcher.Constraint("DistanceX", 0, 1, 0, 2, Q("0.6 in")))
sketch14.addConstraint(Sketcher.Constraint("Angle", 3, Q("-59 deg")))
sketch14.addConstraint(Sketcher.Constraint("DistanceY", 1, 1, 1, 2, Q("0.166 in")))
sketch14.addConstraint(Sketcher.Constraint("DistanceX", -1, 1, 0, 2, Q("3.455 in")))
groove8 = body.newObject("PartDesign::Groove", "Groove007")
groove8.Profile = sketch14
groove8.ReferenceAxis = (sketch14, ["H_Axis"])
groove8.Angle = 360

sketch15 = body.newObject("Sketcher::SketchObject", "Sketch014")
sketch15.AttachmentSupport = (doc.getObject("XZ_Plane"), [""])
sketch15.MapMode = "FlatFace"
sketch15.AttachmentOffset = App.Placement(Vector(0, 0, 1.646 * 25.4), App.Rotation())
sketch15.addGeometry(Part.Circle(Vector(-16, 14, 0), Vector(0, 0, 1), 6), False)
sketch15.addConstraint(Sketcher.Constraint("Diameter", 0, Q("0.507 in")))
sketch15.addConstraint(Sketcher.Constraint("DistanceX", 0, 3, -1, 1, Q("0.625 in")))
sketch15.addConstraint(Sketcher.Constraint("DistanceY", -1, 1, 0, 3, Q("0.562 in")))
pad2 = body.newObject("PartDesign::Pad", "Pad001")
pad2.Profile = sketch15
pad2.Length = Q("0.065 in")

sketch16 = body.newObject("Sketcher::SketchObject", "Sketch015")
sketch16.AttachmentSupport = (doc.getObject("YZ_Plane"), [""])
sketch16.MapMode = "FlatFace"
sketch16.AttachmentOffset = App.Placement(Vector(0, 0, -0.105 * 25.4), App.Rotation())
sketch16.addGeometry(Part.Circle(Vector(-28.6, 14.3, 0), Vector(0, 0, 1), 4.8), False)
sketch16.addConstraint(Sketcher.Constraint("Diameter", 0, Q("0.378 in")))
sketch16.addConstraint(Sketcher.Constraint("DistanceX", 0, 3, -1, 1, Q("1.125 in")))
sketch16.addConstraint(Sketcher.Constraint("DistanceY", -1, 1, 0, 3, Q("0.562 in")))
pad3 = body.newObject("PartDesign::Pad", "Pad002")
pad3.Profile = sketch16
pad3.Length = Q("0.105 in")

sketch17 = body.newObject("Sketcher::SketchObject", "Sketch016")
sketch17.AttachmentSupport = (doc.getObject("XY_Plane"), [""])
sketch17.MapMode = "FlatFace"
sketch17.addGeometry(Part.LineSegment(Vector(81.4, -7.9, 0), Vector(83.8, -7.9, 0)), False)
sketch17.addGeometry(Part.LineSegment(Vector(83.8, -7.9, 0), Vector(83.8, -5.5, 0)), False)
sketch17.addGeometry(Part.LineSegment(Vector(83.8, -5.5, 0), Vector(81.4, -7.9, 0)), False)
sketch17.addGeometry(Part.LineSegment(Vector(83.8, -5.5, 0), Vector(83.8, -7.9, 0)), True)
sketch17.addConstraint(Sketcher.Constraint("Coincident", 0, 2, 1, 1))
sketch17.addConstraint(Sketcher.Constraint("Coincident", 1, 2, 2, 1))
sketch17.addConstraint(Sketcher.Constraint("Coincident", 2, 2, 0, 1))
sketch17.addConstraint(Sketcher.Constraint("Horizontal", 0))
sketch17.addConstraint(Sketcher.Constraint("Vertical", 1))
sketch17.addConstraint(Sketcher.Constraint("Vertical", 3))
sketch17.addConstraint(Sketcher.Constraint("Coincident", 3, 1, 1, 2))
sketch17.addConstraint(Sketcher.Constraint("Horizontal", 2, 2, 3, 2))
sketch17.addConstraint(Sketcher.Constraint("Equal", 0, 1))
sketch17.addConstraint(Sketcher.Constraint("DistanceX", 0, 1, 0, 2, Q("0.095 in")))
sketch17.addConstraint(Sketcher.Constraint("DistanceX", -1, 1, 0, 2, Q("3.299 in")))
sketch17.addConstraint(Sketcher.Constraint("DistanceY", 0, 2, -1, 1, Q("0.3125 in")))
groove9 = body.newObject("PartDesign::Groove", "Groove008")
groove9.Profile = sketch17
groove9.ReferenceAxis = (sketch17, ["Axis0"])
groove9.Angle = 360
doc.recompute()

polarpattern = body.newObject("PartDesign::PolarPattern", "PolarPattern")
polarpattern.Originals = [groove9]
polarpattern.Axis = (doc.getObject("X_Axis"), [""])
polarpattern.Angle = 360
polarpattern.Occurrences = 6
body.Tip = polarpattern

sketch18 = body.newObject("Sketcher::SketchObject", "Sketch017")
sketch18.AttachmentSupport = (doc.getObject("XZ_Plane"), [""])
sketch18.MapMode = "FlatFace"
sketch18.AttachmentOffset = App.Placement(Vector(0, 0, -0.562 * 25.4), App.Rotation())
sketch18.addGeometry(Part.LineSegment(Vector(-31.8, 20.6, 0), Vector(0, 20.6, 0)), False)
sketch18.addGeometry(Part.LineSegment(Vector(0, 20.6, 0), Vector(0, 17.1, 0)), False)
sketch18.addGeometry(Part.LineSegment(Vector(0, 17.1, 0), Vector(-31.8, 17.1, 0)), False)
sketch18.addGeometry(Part.LineSegment(Vector(-31.8, 17.1, 0), Vector(-31.8, 20.6, 0)), False)
sketch18.addGeometry(Part.LineSegment(Vector(-31.8, 20.6, 0), Vector(0, 20.6, 0)), True)
sketch18.addConstraint(Sketcher.Constraint("Coincident", 0, 2, 1, 1))
sketch18.addConstraint(Sketcher.Constraint("Coincident", 1, 2, 2, 1))
sketch18.addConstraint(Sketcher.Constraint("Coincident", 2, 2, 3, 1))
sketch18.addConstraint(Sketcher.Constraint("Coincident", 3, 2, 0, 1))
sketch18.addConstraint(Sketcher.Constraint("Horizontal", 0))
sketch18.addConstraint(Sketcher.Constraint("Vertical", 1))
sketch18.addConstraint(Sketcher.Constraint("Horizontal", 2))
sketch18.addConstraint(Sketcher.Constraint("Vertical", 3))
sketch18.addConstraint(Sketcher.Constraint("Horizontal", 4))
sketch18.addConstraint(Sketcher.Constraint("Coincident", 4, 1, 3, 2))
sketch18.addConstraint(Sketcher.Constraint("PointOnObject", 0, 2, -2))
sketch18.addConstraint(Sketcher.Constraint("PointOnObject", 4, 2, -2))
sketch18.addConstraint(Sketcher.Constraint("DistanceX", 0, 1, 0, 2, Q("1.25 in")))
sketch18.addConstraint(Sketcher.Constraint("DistanceY", 1, 2, 1, 1, Q("0.1405 in")))
sketch18.addConstraint(Sketcher.Constraint("DistanceY", -1, 1, 0, 2, Q("0.812 in")))
groove10 = body.newObject("PartDesign::Groove", "Groove009")
groove10.Profile = sketch18
groove10.ReferenceAxis = (sketch18, ["Axis0"])
groove10.Angle = 360
doc.recompute()

datumline = body.newObject("PartDesign::Line", "DatumLine")
datumline.Placement = App.Placement(Vector(0, 0, 0), App.Rotation(Vector(0, 0, 1), Vector(0, -0.885809163, -0.464049703)))
linearpattern = body.newObject("PartDesign::LinearPattern", "LinearPattern")
linearpattern.Originals = [groove10]
linearpattern.Direction = (datumline, [""])
linearpattern.Mode = "offset"
linearpattern.Offset = 44.445239
linearpattern.Occurrences = 2
body.Tip = linearpattern
doc.recompute()

linearpattern2 = body.newObject("PartDesign::LinearPattern", "LinearPattern001")
linearpattern2.Originals = [groove10]
linearpattern2.Direction = (doc.getObject("Y_Axis"), [""])
linearpattern2.Mode = "offset"
linearpattern2.Offset = Q("1.124 in")
linearpattern2.Occurrences = 2
linearpattern2.Reversed = True
body.Tip = linearpattern2
doc.recompute()

linearpattern3 = body.newObject("PartDesign::LinearPattern", "LinearPattern002")
linearpattern3.Originals = [groove10]
linearpattern3.Direction = (doc.getObject("Z_Axis"), [""])
linearpattern3.Mode = "offset"
linearpattern3.Offset = Q("1.624 in")
linearpattern3.Occurrences = 2
linearpattern3.Reversed = True
body.Tip = linearpattern3
doc.recompute()

datumline2 = body.newObject("PartDesign::Line", "DatumLine001")
datumline2.Placement = App.Placement(Vector(0, 0, 0), App.Rotation(Vector(0, 0, 1), Vector(0, -0.569104659, -0.822265095)))
linearpattern4 = body.newObject("PartDesign::LinearPattern", "LinearPattern003")
linearpattern4.Originals = [groove10]
linearpattern4.Direction = (datumline2, [""])
linearpattern4.Mode = "offset"
linearpattern4.Offset = 50.165817
linearpattern4.Occurrences = 2
body.Tip = linearpattern4

sketch19 = body.newObject("Sketcher::SketchObject", "Sketch018")
sketch19.AttachmentSupport = (doc.getObject("YZ_Plane"), [""])
sketch19.MapMode = "FlatFace"
sketch19.AttachmentOffset = App.Placement(Vector(0, 0, -1.145 * 25.4), App.Rotation())
sketch19.addGeometry(Part.Circle(Vector(-28.6, 14.3, 0), Vector(0, 0, 1), 4.8), False)
sketch19.addConstraint(Sketcher.Constraint("Diameter", 0, Q("0.378 in")))
sketch19.addConstraint(Sketcher.Constraint("DistanceX", 0, 3, -1, 1, Q("1.125 in")))
sketch19.addConstraint(Sketcher.Constraint("DistanceY", -1, 1, 0, 3, Q("0.562 in")))
pad4 = body.newObject("PartDesign::Pad", "Pad003")
pad4.Profile = sketch19
pad4.Length = Q("0.105 in")
pad4.Reversed = True
body2 = doc.addObject("PartDesign::Body", "Body001")

sketch20 = body2.newObject("Sketcher::SketchObject", "Sketch019")
sketch20.AttachmentSupport = (doc.getObject("XZ_Plane001"), [""])
sketch20.MapMode = "FlatFace"
sketch20.AttachmentOffset = App.Placement(Vector(0, 0, 1.125 * 25.4), App.Rotation())
sketch20.addGeometry(Part.Circle(Vector(-0.9, -20.4, 0), Vector(0, 0, 1), 1.8), False)
sketch20.addGeometry(Part.LineSegment(Vector(-0.9, -14.3, 0), Vector(9.1, -14.3, 0)), True)
sketch20.addConstraint(Sketcher.Constraint("Horizontal", 1))
sketch20.addConstraint(Sketcher.Constraint("Vertical", 0, 3, 1, 1))
sketch20.addConstraint(Sketcher.Constraint("Diameter", 0, Q("0.139 in")))
sketch20.addConstraint(Sketcher.Constraint("DistanceY", 0, 3, -1, 1, Q("0.805 in")))
sketch20.addConstraint(Sketcher.Constraint("DistanceY", 1, 1, -1, 1, Q("0.562 in")))
sketch20.addConstraint(Sketcher.Constraint("DistanceX", 1, 1, 1, 2, Q("10 mm")))
sketch20.addConstraint(Sketcher.Constraint("DistanceX", 0, 3, -1, 1, Q("0.0355 in")))
revolution2 = body2.newObject("PartDesign::Revolution", "Revolution001")
revolution2.Profile = sketch20
revolution2.ReferenceAxis = (sketch20, ["Axis0"])
revolution2.Angle = 360
body3 = doc.addObject("PartDesign::Body", "Body002")

sketch21 = body3.newObject("Sketcher::SketchObject", "Sketch020")
sketch21.AttachmentSupport = (doc.getObject("XZ_Plane002"), [""])
sketch21.MapMode = "FlatFace"
sketch21.AttachmentOffset = App.Placement(Vector(0, 0, 1.125 * 25.4), App.Rotation())
sketch21.addGeometry(Part.Circle(Vector(-30.8, -20.4, 0), Vector(0, 0, 1), 1.8), False)
sketch21.addGeometry(Part.LineSegment(Vector(-30.8, -14.3, 0), Vector(-20.8, -14.3, 0)), True)
sketch21.addConstraint(Sketcher.Constraint("Horizontal", 1))
sketch21.addConstraint(Sketcher.Constraint("Vertical", 0, 3, 1, 1))
sketch21.addConstraint(Sketcher.Constraint("Diameter", 0, Q("0.139 in")))
sketch21.addConstraint(Sketcher.Constraint("DistanceY", 0, 3, -1, 1, Q("0.805 in")))
sketch21.addConstraint(Sketcher.Constraint("DistanceY", 1, 1, -1, 1, Q("0.562 in")))
sketch21.addConstraint(Sketcher.Constraint("DistanceX", 1, 1, 1, 2, Q("10 mm")))
sketch21.addConstraint(Sketcher.Constraint("DistanceX", 0, 3, -1, 1, Q("1.2145 in")))
revolution3 = body3.newObject("PartDesign::Revolution", "Revolution002")
revolution3.Profile = sketch21
revolution3.ReferenceAxis = (sketch21, ["Axis0"])
revolution3.Angle = 360

doc.recompute()
